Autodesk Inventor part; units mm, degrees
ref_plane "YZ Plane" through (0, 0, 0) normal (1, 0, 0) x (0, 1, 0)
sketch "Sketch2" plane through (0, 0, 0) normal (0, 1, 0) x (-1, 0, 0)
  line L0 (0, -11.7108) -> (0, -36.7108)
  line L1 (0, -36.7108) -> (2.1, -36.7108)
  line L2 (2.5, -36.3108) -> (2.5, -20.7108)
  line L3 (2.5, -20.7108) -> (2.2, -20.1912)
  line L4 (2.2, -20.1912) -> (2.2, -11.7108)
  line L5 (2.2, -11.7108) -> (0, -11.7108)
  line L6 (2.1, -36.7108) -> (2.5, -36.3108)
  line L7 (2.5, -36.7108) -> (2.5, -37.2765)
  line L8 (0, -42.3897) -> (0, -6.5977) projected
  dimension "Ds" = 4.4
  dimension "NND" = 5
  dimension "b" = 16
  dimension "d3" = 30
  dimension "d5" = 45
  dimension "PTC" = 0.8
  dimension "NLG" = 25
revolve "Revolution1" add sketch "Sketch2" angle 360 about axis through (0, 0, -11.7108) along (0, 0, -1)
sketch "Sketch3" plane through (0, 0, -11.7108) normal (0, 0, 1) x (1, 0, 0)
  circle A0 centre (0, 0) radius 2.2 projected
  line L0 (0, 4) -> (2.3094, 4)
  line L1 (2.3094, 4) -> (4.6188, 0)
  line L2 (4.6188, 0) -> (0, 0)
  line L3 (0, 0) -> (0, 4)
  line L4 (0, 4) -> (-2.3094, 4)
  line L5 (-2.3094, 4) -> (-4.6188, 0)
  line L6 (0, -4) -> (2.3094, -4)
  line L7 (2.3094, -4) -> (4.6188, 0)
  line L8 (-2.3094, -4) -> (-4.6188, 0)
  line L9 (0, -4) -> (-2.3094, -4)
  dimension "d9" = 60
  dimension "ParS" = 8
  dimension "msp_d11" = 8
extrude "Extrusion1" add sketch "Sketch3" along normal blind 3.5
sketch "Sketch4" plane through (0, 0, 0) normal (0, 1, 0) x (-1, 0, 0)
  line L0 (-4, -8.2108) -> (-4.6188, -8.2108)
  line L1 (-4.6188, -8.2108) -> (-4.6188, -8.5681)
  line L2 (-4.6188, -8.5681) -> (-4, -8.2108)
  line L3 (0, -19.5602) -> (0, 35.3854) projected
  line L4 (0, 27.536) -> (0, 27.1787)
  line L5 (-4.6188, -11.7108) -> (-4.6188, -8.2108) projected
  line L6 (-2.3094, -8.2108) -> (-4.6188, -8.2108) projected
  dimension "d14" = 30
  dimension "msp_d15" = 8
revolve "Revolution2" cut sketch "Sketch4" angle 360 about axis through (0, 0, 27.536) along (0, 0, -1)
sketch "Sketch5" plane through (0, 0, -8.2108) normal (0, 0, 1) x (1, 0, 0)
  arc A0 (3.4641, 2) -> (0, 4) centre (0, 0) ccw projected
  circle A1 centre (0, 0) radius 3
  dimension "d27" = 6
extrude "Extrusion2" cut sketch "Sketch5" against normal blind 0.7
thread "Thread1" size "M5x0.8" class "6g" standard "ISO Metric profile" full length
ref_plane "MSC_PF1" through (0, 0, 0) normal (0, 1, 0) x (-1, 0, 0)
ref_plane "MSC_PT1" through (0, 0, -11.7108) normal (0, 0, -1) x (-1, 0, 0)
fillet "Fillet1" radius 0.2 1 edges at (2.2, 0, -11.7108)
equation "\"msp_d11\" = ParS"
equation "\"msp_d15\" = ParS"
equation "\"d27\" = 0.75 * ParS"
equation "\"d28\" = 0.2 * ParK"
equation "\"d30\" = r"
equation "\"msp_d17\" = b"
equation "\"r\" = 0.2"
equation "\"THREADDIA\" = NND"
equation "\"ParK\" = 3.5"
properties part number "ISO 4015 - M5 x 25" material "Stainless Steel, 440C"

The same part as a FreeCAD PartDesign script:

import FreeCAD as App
import Part
import Sketcher
from FreeCAD import Vector
Q = App.Units.Quantity


def edges_at(feature, points):
    """Names of the edges that pass closest to the given points."""
    edges = feature.Shape.Edges
    near = lambda p: min(range(len(edges)), key=lambda i: edges[i].distToShape(Part.Vertex(*p))[0])
    return sorted({f"Edge{near(p) + 1}" for p in points})


def add_polygon(sketch, points):
    """Adds a closed chain of lines whose ends are joined by coincident constraints."""
    first, n = sketch.GeometryCount, len(points)
    for a, b in zip(points, points[1:] + points[:1]):
        sketch.addGeometry(Part.LineSegment(App.Vector(*a, 0), App.Vector(*b, 0)), False)
    for i in range(n):
        sketch.addConstraint(Sketcher.Constraint("Coincident", first + i, 2, first + (i + 1) % n, 1))

doc = App.newDocument("Part")
body = doc.addObject("PartDesign::Body", "Body")

sketch1 = doc.addObject("Sketcher::SketchObject", "Sketch")
body.addObject(sketch1)
sketch1.AttachmentSupport = (doc.XZ_Plane, [""])
sketch1.MapMode = "FlatFace"
add_polygon(sketch1, [(-2.2, -11.7), (0, -11.7), (0, -36.7), (-2.1, -36.7), (-2.5, -36.3), (-2.5, -20.7), (-2.2, -20.2)])
sketch1.addConstraint([
    Sketcher.Constraint("Horizontal", 0),
    Sketcher.Constraint("Vertical", 1),
    Sketcher.Constraint("Horizontal", 2),
    Sketcher.Constraint("Vertical", 4),
    Sketcher.Constraint("Vertical", 6),
    Sketcher.Constraint("PointOnObject", 0, 2, -2),
    Sketcher.Constraint("DistanceY", 1, 2, 1, 1, 25.0),
    Sketcher.Constraint("DistanceY", 2, 2, 4, 2, 16.0),
    Sketcher.Constraint("Angle", 3, Q("135 deg")),
    Sketcher.Constraint("Angle", 5, Q("59.9993 deg")),
    Sketcher.Constraint("DistanceX", 0, 1, 0, 2, 2.2),
    Sketcher.Constraint("DistanceX", 2, 2, 2, 1, 2.1),
    Sketcher.Constraint("DistanceY", 4, 1, 4, 2, 15.6),
    Sketcher.Constraint("DistanceY", 0, 2, -1, 1, 11.7108),
])
revolution = doc.addObject("PartDesign::Revolution", "Revolution")
body.addObject(revolution)
revolution.Profile = sketch1
revolution.ReferenceAxis = (sketch1, ["V_Axis"])
revolution.Angle = 360

sketch2 = doc.addObject("Sketcher::SketchObject", "Sketch001")
body.addObject(sketch2)
sketch2.AttachmentSupport = (doc.XY_Plane, [""])
sketch2.MapMode = "FlatFace"
sketch2.AttachmentOffset = App.Placement(Vector(0, 0, -11.7108), App.Rotation())
add_polygon(sketch2, [(2.3, 4), (-2.3, 4), (-4.6, 0), (-2.3, -4), (2.3, -4), (4.6, 0)])
sketch2.addConstraint([
    Sketcher.Constraint("Horizontal", 0),
    Sketcher.Constraint("Horizontal", 3),
    Sketcher.Constraint("Symmetric", 0, 2, 3, 2, -1, 1),
    Sketcher.Constraint("Symmetric", 1, 2, 4, 2, -1, 1),
    Sketcher.Constraint("PointOnObject", 1, 2, -1),
    Sketcher.Constraint("Parallel", 2, 5),
    Sketcher.Constraint("Vertical", 0, 2, 2, 2),
    Sketcher.Constraint("Angle", 2, Q("-60 deg")),
    Sketcher.Constraint("DistanceY", 2, 2, 0, 2, 8.0),
    Sketcher.Constraint("DistanceX", 0, 2, 0, 1, 4.6188),
])
pad1 = doc.addObject("PartDesign::Pad", "Pad")
body.addObject(pad1)
pad1.Profile = sketch2
pad1.Length = 3.5

sketch3 = doc.addObject("Sketcher::SketchObject", "Sketch002")
body.addObject(sketch3)
sketch3.AttachmentSupport = (doc.XZ_Plane, [""])
sketch3.MapMode = "FlatFace"
add_polygon(sketch3, [(4.62, -8.57), (4, -8.21), (4.62, -8.21)])
sketch3.addConstraint([
    Sketcher.Constraint("Horizontal", 1),
    Sketcher.Constraint("Vertical", 2),
    Sketcher.Constraint("DistanceX", -1, 1, 0, 2, 4.0),
    Sketcher.Constraint("DistanceX", 1, 1, 1, 2, 0.6188),
    Sketcher.Constraint("DistanceY", 2, 2, 2, 1, 0.3573),
    Sketcher.Constraint("DistanceY", 2, 2, -1, 1, 8.568),
])
groove = doc.addObject("PartDesign::Groove", "Groove")
body.addObject(groove)
groove.Profile = sketch3
groove.ReferenceAxis = (sketch3, ["V_Axis"])
groove.Angle = 360

sketch4 = doc.addObject("Sketcher::SketchObject", "Sketch003")
body.addObject(sketch4)
sketch4.AttachmentSupport = (doc.XY_Plane, [""])
sketch4.MapMode = "FlatFace"
sketch4.AttachmentOffset = App.Placement(Vector(0, 0, -8.2108), App.Rotation())
sketch4.addGeometry(Part.Circle(Vector(0, 0, 0), Vector(0, 0, 1), 3), False)
sketch4.addConstraint([
    Sketcher.Constraint("Coincident", 0, 3, -1, 1),
    Sketcher.Constraint("Diameter", 0, 6.0),
])
pocket1 = doc.addObject("PartDesign::Pocket", "Pocket")
body.addObject(pocket1)
pocket1.Profile = sketch4
pocket1.Length = 0.7
doc.recompute()

fillet = doc.addObject("PartDesign::Fillet", "Fillet")
body.addObject(fillet)
fillet.Base = (pocket1, edges_at(pocket1, [(2.2, 0, -11.711)]))
fillet.Radius = 0.2

doc.recompute()
